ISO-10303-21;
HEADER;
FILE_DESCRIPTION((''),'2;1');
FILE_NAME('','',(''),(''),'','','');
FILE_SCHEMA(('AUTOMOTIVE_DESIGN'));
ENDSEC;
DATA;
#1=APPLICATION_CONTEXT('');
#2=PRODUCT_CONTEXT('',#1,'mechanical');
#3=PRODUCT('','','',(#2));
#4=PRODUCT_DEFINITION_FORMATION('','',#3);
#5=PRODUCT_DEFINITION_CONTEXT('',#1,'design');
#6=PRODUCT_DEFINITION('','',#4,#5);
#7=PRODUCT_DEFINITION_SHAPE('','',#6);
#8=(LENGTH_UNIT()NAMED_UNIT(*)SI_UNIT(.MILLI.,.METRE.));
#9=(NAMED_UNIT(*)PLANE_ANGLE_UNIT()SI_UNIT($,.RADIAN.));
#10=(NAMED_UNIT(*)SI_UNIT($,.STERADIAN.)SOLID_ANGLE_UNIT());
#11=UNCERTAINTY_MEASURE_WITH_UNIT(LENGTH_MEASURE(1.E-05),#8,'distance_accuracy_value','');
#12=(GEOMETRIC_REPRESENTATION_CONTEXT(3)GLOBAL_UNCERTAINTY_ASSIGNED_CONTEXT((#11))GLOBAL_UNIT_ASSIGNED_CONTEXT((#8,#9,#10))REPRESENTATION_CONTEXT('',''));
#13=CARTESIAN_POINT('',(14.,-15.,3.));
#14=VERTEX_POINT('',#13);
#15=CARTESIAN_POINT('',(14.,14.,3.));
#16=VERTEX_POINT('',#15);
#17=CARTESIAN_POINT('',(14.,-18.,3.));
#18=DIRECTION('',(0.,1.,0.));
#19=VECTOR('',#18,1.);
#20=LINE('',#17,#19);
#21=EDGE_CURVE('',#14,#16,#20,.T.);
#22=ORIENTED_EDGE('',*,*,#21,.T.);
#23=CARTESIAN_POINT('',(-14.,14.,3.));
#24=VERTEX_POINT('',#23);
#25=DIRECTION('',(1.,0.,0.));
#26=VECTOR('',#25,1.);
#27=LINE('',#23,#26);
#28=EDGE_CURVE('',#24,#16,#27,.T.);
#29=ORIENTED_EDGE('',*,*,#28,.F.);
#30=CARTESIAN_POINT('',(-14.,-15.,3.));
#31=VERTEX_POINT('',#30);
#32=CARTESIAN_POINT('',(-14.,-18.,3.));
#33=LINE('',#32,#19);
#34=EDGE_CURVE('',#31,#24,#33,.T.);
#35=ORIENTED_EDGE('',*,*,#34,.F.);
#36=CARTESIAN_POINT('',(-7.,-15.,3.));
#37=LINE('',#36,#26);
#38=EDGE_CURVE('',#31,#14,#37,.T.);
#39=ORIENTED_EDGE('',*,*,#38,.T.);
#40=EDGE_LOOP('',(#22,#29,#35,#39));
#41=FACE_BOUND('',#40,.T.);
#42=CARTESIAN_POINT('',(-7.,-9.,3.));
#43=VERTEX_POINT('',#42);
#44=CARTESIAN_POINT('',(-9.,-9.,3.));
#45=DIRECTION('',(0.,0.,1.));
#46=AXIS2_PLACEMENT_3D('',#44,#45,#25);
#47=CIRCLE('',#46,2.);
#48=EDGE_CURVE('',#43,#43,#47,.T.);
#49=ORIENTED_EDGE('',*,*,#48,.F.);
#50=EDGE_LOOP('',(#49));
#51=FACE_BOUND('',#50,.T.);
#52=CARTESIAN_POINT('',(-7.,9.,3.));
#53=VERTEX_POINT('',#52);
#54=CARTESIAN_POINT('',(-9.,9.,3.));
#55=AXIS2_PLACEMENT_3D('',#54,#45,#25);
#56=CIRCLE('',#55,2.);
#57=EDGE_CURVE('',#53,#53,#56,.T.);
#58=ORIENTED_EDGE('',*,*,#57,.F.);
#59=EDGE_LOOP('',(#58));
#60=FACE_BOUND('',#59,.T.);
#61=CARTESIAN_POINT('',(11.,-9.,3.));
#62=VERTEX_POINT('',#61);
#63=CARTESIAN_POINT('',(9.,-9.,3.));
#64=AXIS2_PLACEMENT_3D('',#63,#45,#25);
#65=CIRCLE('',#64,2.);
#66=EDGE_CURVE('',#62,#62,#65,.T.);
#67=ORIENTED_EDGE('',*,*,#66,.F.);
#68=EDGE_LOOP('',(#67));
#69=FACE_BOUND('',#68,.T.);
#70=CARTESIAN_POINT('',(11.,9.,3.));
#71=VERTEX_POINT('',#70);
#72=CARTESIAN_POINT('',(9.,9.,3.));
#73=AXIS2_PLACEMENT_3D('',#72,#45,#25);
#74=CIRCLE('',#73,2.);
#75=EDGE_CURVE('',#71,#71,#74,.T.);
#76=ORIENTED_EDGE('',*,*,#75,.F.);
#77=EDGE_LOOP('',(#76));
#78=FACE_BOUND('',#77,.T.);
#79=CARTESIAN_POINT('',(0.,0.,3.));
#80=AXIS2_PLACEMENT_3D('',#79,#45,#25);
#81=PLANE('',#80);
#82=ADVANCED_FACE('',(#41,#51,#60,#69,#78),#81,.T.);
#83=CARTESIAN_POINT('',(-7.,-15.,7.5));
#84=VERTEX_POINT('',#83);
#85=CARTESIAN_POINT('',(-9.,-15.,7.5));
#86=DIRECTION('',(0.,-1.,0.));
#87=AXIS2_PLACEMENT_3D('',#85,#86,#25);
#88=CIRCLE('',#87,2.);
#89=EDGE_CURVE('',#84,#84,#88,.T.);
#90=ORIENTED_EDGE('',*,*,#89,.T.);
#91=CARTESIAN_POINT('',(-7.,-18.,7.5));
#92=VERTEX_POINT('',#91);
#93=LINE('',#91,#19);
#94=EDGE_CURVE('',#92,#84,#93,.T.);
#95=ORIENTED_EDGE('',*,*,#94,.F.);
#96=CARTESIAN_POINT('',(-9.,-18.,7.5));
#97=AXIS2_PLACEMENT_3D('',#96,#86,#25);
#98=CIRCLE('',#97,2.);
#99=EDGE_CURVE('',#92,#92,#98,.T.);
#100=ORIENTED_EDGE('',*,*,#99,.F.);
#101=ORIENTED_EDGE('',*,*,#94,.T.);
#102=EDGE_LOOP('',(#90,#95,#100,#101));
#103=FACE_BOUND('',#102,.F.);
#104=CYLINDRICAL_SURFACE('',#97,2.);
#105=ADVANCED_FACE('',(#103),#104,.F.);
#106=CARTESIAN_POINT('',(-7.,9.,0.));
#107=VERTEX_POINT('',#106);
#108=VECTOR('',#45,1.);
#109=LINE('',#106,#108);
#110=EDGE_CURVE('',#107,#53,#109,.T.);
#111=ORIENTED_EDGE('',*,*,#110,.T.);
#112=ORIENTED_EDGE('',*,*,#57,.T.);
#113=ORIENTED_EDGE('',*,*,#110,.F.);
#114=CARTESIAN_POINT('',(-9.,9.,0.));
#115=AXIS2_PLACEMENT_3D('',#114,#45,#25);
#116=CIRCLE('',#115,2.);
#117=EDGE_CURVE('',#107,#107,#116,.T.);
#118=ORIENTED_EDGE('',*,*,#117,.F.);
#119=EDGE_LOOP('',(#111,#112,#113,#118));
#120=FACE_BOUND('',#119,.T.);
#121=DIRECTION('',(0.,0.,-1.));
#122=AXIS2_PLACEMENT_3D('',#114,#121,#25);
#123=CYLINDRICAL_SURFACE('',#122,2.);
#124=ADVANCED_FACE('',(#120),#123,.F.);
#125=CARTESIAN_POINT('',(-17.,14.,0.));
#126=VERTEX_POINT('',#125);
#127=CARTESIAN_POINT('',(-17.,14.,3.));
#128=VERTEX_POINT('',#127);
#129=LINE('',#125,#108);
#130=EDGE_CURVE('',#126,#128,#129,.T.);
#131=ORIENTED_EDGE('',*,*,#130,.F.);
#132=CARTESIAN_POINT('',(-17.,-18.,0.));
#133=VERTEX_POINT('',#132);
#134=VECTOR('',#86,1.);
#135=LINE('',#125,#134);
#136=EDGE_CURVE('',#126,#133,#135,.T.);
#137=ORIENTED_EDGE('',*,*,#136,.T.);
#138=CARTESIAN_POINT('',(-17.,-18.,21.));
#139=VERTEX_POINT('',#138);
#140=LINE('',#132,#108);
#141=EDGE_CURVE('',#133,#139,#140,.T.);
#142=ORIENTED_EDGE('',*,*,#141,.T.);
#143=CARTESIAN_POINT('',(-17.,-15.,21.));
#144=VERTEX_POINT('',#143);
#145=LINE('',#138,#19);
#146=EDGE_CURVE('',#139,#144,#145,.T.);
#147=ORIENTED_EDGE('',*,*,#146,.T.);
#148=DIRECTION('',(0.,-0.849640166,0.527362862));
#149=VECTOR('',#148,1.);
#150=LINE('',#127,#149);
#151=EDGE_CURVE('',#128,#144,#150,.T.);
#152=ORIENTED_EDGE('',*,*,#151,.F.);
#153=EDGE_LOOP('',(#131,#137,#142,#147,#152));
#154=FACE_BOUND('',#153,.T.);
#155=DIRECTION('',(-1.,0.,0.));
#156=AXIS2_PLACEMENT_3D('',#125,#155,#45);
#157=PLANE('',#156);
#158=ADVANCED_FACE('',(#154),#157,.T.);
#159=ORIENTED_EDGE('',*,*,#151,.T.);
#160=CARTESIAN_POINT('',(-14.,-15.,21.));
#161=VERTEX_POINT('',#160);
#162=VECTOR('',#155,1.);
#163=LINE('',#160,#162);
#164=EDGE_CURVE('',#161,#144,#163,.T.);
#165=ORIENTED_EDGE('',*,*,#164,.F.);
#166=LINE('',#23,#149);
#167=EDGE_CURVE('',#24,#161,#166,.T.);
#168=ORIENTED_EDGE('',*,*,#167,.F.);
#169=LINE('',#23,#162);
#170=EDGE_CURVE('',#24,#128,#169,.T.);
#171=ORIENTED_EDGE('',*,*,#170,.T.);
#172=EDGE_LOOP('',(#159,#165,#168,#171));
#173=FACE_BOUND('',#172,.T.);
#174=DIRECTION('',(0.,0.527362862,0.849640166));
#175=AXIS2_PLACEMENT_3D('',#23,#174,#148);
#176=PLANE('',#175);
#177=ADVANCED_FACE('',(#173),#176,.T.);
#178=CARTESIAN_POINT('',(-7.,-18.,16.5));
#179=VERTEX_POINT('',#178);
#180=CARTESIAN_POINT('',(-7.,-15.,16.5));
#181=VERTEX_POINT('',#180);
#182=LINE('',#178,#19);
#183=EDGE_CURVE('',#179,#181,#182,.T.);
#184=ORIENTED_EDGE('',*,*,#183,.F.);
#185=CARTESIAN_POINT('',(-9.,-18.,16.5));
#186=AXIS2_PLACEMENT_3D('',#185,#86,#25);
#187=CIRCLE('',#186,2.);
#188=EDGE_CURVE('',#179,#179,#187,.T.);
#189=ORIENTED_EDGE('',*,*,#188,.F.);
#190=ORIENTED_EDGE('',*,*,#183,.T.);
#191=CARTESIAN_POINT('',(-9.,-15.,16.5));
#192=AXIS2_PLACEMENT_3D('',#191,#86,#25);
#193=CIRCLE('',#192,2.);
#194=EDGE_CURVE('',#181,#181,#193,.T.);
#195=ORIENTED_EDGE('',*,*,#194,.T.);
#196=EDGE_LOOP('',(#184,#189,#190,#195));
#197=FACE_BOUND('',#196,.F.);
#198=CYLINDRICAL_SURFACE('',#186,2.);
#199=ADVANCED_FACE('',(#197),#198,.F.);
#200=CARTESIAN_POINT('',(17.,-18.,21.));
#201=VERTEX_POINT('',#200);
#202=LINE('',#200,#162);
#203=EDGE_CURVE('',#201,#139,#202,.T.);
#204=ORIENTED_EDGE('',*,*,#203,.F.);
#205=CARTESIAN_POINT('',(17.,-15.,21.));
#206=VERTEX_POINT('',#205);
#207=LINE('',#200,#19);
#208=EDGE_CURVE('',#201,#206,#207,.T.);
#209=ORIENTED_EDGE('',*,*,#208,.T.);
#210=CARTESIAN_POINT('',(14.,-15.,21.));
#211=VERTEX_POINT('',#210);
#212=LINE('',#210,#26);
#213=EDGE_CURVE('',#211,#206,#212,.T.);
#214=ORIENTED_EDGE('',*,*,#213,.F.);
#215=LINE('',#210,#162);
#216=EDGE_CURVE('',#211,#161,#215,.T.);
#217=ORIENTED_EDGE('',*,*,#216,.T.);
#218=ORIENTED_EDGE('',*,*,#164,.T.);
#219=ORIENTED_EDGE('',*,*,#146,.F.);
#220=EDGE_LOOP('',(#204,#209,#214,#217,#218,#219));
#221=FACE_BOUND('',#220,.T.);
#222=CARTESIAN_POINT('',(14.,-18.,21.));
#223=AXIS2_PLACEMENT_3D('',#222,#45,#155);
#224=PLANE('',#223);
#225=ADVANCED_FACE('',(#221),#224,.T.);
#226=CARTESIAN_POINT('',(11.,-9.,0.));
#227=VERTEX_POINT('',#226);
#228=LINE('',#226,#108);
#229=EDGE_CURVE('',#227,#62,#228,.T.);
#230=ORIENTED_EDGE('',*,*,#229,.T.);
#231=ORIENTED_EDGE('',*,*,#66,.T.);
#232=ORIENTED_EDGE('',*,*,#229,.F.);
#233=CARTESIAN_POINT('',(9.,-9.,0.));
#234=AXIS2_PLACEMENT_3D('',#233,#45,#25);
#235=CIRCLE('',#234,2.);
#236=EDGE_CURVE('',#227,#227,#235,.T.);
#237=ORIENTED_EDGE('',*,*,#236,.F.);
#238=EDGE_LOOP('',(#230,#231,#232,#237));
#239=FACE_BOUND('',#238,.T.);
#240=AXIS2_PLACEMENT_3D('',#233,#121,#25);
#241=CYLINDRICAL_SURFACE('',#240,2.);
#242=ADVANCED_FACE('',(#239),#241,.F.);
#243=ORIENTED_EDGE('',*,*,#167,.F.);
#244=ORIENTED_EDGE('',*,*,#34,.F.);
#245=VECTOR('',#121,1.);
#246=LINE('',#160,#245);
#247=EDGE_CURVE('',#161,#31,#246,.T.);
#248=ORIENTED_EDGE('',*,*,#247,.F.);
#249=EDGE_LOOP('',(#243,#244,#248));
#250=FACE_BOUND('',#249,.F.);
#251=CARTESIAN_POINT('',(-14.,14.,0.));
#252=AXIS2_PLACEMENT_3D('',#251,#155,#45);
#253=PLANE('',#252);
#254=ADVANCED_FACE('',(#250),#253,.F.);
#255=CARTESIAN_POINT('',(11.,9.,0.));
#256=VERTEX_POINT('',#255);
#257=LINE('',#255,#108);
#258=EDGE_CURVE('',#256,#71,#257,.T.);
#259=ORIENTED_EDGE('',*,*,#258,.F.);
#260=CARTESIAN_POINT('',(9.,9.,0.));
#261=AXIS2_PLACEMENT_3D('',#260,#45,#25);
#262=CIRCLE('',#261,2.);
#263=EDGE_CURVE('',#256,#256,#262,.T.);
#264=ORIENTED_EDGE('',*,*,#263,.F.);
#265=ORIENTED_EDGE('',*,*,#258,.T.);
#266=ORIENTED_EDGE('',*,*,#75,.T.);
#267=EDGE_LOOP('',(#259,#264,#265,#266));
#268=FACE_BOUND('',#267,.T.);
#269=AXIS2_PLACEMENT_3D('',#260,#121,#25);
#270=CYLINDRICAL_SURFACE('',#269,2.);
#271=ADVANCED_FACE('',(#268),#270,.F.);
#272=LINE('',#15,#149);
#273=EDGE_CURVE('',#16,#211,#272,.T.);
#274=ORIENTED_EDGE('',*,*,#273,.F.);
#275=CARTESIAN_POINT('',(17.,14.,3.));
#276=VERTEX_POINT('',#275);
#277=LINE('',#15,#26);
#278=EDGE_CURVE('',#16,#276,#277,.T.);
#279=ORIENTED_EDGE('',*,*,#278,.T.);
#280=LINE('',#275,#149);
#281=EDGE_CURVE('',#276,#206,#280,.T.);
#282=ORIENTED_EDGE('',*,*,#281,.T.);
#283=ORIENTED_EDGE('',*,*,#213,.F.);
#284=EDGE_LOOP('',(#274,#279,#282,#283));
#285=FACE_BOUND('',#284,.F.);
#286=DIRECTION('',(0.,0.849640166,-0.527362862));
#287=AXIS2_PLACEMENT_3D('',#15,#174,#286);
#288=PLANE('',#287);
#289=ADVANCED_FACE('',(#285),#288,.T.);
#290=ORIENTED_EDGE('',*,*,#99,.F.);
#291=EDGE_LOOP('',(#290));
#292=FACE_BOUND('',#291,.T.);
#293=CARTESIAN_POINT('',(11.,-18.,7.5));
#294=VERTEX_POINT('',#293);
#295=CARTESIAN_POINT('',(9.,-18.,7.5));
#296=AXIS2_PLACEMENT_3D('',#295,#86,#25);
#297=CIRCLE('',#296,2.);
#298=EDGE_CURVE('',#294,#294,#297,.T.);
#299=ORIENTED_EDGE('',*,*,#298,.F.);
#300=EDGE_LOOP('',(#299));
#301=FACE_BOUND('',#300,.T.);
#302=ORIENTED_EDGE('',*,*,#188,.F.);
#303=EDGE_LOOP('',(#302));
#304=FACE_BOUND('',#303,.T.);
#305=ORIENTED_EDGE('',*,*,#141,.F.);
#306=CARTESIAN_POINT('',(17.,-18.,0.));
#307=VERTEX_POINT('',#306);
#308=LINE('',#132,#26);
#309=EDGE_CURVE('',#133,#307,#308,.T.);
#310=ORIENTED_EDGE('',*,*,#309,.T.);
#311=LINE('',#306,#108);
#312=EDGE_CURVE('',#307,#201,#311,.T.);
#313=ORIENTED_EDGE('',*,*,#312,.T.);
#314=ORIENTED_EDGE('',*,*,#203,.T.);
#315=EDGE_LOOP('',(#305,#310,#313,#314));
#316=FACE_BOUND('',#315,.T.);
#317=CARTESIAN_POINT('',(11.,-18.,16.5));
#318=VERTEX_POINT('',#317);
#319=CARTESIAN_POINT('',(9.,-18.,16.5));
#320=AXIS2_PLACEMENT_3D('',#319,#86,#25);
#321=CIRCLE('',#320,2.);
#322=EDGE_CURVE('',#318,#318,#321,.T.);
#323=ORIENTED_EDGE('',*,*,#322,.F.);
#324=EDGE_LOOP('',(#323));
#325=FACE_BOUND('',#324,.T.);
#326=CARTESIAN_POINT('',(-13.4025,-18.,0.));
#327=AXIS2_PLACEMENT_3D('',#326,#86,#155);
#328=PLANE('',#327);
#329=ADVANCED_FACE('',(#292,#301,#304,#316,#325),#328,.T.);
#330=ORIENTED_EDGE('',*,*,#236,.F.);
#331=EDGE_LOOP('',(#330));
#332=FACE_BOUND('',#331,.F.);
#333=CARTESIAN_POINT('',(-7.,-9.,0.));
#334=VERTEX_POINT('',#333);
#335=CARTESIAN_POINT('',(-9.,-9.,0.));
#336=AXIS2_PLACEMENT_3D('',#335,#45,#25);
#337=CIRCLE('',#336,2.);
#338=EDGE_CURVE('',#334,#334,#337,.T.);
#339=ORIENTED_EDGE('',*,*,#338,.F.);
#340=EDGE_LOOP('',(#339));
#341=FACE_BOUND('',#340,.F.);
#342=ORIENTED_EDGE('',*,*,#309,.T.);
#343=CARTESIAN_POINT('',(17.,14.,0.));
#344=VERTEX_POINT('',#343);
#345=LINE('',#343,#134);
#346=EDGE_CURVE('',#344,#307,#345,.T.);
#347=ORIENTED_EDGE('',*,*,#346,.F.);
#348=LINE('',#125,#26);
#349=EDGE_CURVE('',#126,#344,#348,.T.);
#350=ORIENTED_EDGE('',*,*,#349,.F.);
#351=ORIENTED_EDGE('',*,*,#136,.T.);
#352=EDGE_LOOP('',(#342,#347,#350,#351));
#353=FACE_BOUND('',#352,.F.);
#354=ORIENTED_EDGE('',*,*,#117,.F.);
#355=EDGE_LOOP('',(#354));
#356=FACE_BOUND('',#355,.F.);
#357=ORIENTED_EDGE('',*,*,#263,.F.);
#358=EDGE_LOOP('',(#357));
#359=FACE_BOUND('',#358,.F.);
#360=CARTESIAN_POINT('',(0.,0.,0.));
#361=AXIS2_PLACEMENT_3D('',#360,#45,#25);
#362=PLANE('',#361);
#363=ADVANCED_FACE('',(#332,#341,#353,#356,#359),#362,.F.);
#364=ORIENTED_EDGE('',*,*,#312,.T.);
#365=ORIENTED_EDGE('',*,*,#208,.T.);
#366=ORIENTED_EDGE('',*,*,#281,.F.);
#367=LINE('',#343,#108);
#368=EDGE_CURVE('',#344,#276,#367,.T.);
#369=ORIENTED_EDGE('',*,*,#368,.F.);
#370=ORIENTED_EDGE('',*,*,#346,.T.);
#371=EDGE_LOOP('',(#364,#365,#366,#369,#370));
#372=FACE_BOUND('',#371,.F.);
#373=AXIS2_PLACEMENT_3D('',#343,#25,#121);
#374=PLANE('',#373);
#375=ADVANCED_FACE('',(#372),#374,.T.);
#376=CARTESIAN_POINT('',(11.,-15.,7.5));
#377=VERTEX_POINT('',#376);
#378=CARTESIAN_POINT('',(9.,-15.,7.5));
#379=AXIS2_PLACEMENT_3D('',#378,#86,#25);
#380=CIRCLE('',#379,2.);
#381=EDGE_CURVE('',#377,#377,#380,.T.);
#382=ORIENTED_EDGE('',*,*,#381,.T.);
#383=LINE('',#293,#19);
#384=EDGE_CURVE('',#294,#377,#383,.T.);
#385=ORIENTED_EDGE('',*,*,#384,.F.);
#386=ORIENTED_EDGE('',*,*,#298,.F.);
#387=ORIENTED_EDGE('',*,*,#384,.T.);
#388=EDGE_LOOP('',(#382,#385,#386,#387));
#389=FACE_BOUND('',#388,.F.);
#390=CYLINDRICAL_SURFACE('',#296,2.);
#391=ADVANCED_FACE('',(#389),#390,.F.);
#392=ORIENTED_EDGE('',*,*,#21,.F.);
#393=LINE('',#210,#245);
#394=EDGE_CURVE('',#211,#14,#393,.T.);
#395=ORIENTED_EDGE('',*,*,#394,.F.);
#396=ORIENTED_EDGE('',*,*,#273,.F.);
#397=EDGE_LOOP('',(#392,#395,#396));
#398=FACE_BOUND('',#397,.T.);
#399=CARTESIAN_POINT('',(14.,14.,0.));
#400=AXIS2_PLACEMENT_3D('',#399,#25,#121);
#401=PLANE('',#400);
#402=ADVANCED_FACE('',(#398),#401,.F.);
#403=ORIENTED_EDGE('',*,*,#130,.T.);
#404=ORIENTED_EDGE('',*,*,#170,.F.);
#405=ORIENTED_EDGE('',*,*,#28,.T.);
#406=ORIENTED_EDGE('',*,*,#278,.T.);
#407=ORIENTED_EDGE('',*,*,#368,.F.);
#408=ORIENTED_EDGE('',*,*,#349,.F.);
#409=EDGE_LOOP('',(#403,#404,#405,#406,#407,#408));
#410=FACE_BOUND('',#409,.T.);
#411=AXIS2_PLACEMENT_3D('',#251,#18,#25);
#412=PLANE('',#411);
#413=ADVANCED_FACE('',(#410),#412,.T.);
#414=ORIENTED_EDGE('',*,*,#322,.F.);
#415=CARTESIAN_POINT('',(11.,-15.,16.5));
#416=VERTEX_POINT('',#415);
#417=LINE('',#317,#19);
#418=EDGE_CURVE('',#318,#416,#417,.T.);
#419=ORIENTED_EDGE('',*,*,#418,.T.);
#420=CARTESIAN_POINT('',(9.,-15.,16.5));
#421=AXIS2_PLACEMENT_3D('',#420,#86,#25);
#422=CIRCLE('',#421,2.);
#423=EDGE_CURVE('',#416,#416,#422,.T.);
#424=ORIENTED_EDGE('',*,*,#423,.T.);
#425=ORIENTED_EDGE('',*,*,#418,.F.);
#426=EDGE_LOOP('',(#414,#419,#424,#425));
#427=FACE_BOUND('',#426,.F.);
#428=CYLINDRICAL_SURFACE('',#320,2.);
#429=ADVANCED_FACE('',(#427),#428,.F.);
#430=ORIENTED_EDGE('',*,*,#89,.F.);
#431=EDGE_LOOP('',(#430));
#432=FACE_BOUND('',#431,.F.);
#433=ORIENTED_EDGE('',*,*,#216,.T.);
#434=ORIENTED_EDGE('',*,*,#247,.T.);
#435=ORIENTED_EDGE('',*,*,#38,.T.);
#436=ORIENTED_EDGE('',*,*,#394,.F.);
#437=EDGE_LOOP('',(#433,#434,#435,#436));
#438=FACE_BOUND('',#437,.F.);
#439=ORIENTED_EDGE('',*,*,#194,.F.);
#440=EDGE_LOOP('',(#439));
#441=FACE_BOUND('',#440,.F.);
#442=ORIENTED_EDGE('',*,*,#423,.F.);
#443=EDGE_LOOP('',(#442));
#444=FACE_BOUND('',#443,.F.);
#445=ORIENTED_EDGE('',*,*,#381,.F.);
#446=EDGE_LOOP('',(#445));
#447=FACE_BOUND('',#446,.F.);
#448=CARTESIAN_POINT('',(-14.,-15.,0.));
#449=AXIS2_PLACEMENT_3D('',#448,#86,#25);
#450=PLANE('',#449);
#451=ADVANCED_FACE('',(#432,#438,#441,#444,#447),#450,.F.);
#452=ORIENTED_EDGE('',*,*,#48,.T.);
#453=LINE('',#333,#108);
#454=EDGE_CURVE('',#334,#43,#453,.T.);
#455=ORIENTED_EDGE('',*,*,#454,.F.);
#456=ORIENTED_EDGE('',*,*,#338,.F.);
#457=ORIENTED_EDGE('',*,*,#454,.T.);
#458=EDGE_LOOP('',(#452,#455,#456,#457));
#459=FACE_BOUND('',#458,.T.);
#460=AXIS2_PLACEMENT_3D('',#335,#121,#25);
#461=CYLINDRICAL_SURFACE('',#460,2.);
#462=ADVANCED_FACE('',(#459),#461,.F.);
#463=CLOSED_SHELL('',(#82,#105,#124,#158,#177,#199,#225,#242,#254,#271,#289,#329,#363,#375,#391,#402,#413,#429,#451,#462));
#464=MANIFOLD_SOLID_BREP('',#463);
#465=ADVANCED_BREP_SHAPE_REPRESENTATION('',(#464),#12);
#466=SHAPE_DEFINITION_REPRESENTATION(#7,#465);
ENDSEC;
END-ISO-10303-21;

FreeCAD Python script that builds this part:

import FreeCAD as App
import Part
import Sketcher

V = App.Vector
Q = App.Units.Quantity


def add_polygon(sketch, points):
    """Adds a closed chain of lines whose ends are joined by coincident constraints."""
    first, n = sketch.GeometryCount, len(points)
    for a, b in zip(points, points[1:] + points[:1]):
        sketch.addGeometry(Part.LineSegment(App.Vector(*a, 0), App.Vector(*b, 0)), False)
    for i in range(n):
        sketch.addConstraint(Sketcher.Constraint("Coincident", first + i, 2, first + (i + 1) % n, 1))

doc = App.newDocument("Part")
body = doc.addObject("PartDesign::Body", "Body")

sketch1 = body.newObject("Sketcher::SketchObject", "Sketch")
sketch1.AttachmentSupport = (doc.getObject("XY_Plane"), [""])
sketch1.MapMode = "FlatFace"
add_polygon(sketch1, [(-14, -18), (14, -18), (14, 14), (-14, 14)])
sketch1.addGeometry(Part.Circle(V(9, 9, 0), V(0, 0, 1), 2), False)
sketch1.addGeometry(Part.Circle(V(-9, -9, 0), V(0, 0, 1), 2), False)
sketch1.addGeometry(Part.Circle(V(9, -9, 0), V(0, 0, 1), 2), False)
sketch1.addGeometry(Part.Circle(V(-9, 9, 0), V(0, 0, 1), 2), False)
sketch1.addConstraint([
    Sketcher.Constraint("Horizontal", 0),
    Sketcher.Constraint("Vertical", 1),
    Sketcher.Constraint("Horizontal", 2),
    Sketcher.Constraint("Vertical", 3),
    Sketcher.Constraint("Equal", 4, 5),
    Sketcher.Constraint("Equal", 5, 6),
    Sketcher.Constraint("Equal", 6, 7),
    Sketcher.Constraint("Symmetric", 4, 3, 5, 3, -1, 1),
    Sketcher.Constraint("Symmetric", 6, 3, 7, 3, -1, 1),
    Sketcher.Constraint("Symmetric", 5, 3, 6, 3, -2),
    Sketcher.Constraint("Diameter", 4, Q("4 mm")),
    Sketcher.Constraint("DistanceX", -1, 1, 4, 3, Q("9 mm")),
    Sketcher.Constraint("DistanceY", -1, 1, 4, 3, Q("9 mm")),
    Sketcher.Constraint("DistanceX", -1, 1, 0, 2, Q("14 mm")),
    Sketcher.Constraint("DistanceY", 0, 2, -1, 1, Q("18 mm")),
    Sketcher.Constraint("DistanceY", -1, 1, 1, 2, Q("14 mm")),
    Sketcher.Constraint("DistanceX", 2, 2, -1, 1, Q("14 mm")),
])
pad1 = body.newObject("PartDesign::Pad", "Pad")
pad1.Profile = sketch1
pad1.Length = 3

sketch2 = body.newObject("Sketcher::SketchObject", "Sketch001")
sketch2.AttachmentSupport = (doc.getObject("XZ_Plane"), [""])
sketch2.MapMode = "FlatFace"
sketch2.AttachmentOffset = App.Placement(V(0, 0, 18), App.Rotation())
add_polygon(sketch2, [(-14, 21), (-14, 0), (14, 0), (14, 21)])
sketch2.addGeometry(Part.Circle(V(-9, 7.5, 0), V(0, 0, 1), 2), False)
sketch2.addGeometry(Part.Circle(V(9, 7.5, 0), V(0, 0, 1), 2), False)
sketch2.addGeometry(Part.Circle(V(-9, 16.5, 0), V(0, 0, 1), 2), False)
sketch2.addGeometry(Part.Circle(V(9, 16.5, 0), V(0, 0, 1), 2), False)
sketch2.addConstraint([
    Sketcher.Constraint("Vertical", 0),
    Sketcher.Constraint("Horizontal", 1),
    Sketcher.Constraint("Vertical", 2),
    Sketcher.Constraint("Horizontal", 3),
    Sketcher.Constraint("Equal", 4, 5),
    Sketcher.Constraint("Equal", 5, 6),
    Sketcher.Constraint("Equal", 6, 7),
    Sketcher.Constraint("Symmetric", 0, 2, 1, 2, -1, 1),
    Sketcher.Constraint("Symmetric", 4, 3, 5, 3, -2),
    Sketcher.Constraint("Symmetric", 6, 3, 7, 3, -2),
    Sketcher.Constraint("Vertical", 4, 3, 6, 3),
    Sketcher.Constraint("Diameter", 4, Q("4 mm")),
    Sketcher.Constraint("DistanceX", 4, 3, -1, 1, Q("9 mm")),
    Sketcher.Constraint("DistanceY", 4, 3, 6, 3, Q("9 mm")),
    Sketcher.Constraint("DistanceX", 1, 1, 1, 2, Q("28 mm")),
    Sketcher.Constraint("DistanceY", 0, 2, 0, 1, Q("21 mm")),
    Sketcher.Constraint("DistanceY", -1, 1, 4, 3, Q("7.5 mm")),
])
pad2 = body.newObject("PartDesign::Pad", "Pad001")
pad2.Profile = sketch2
pad2.Length = 3
pad2.Reversed = True

sketch3 = body.newObject("Sketcher::SketchObject", "Sketch002")
sketch3.AttachmentSupport = (doc.getObject("YZ_Plane"), [""])
sketch3.MapMode = "FlatFace"
sketch3.AttachmentOffset = App.Placement(V(0, 0, -14), App.Rotation())
add_polygon(sketch3, [(-18, 21), (-15, 21), (14, 3), (14, 0), (-18, 0)])
sketch3.addConstraint([
    Sketcher.Constraint("Horizontal", 0),
    Sketcher.Constraint("Vertical", 2),
    Sketcher.Constraint("Horizontal", 3),
    Sketcher.Constraint("Vertical", 4),
    Sketcher.Constraint("PointOnObject", 2, 2, -1),
    Sketcher.Constraint("Equal", 0, 2),
    Sketcher.Constraint("DistanceX", 0, 1, 0, 2, Q("3 mm")),
    Sketcher.Constraint("DistanceX", 3, 2, 3, 1, Q("32 mm")),
    Sketcher.Constraint("DistanceY", 4, 1, 4, 2, Q("21 mm")),
    Sketcher.Constraint("DistanceX", 0, 2, -1, 1, Q("15 mm")),
])
pad3 = body.newObject("PartDesign::Pad", "Pad002")
pad3.Profile = sketch3
pad3.Length = 3
pad3.Reversed = True
doc.recompute()

mirrored = body.newObject("PartDesign::Mirrored", "Mirrored")
mirrored.Originals = [pad3]
mirrored.MirrorPlane = (doc.getObject("YZ_Plane"), [""])
body.Tip = mirrored

doc.recompute()
